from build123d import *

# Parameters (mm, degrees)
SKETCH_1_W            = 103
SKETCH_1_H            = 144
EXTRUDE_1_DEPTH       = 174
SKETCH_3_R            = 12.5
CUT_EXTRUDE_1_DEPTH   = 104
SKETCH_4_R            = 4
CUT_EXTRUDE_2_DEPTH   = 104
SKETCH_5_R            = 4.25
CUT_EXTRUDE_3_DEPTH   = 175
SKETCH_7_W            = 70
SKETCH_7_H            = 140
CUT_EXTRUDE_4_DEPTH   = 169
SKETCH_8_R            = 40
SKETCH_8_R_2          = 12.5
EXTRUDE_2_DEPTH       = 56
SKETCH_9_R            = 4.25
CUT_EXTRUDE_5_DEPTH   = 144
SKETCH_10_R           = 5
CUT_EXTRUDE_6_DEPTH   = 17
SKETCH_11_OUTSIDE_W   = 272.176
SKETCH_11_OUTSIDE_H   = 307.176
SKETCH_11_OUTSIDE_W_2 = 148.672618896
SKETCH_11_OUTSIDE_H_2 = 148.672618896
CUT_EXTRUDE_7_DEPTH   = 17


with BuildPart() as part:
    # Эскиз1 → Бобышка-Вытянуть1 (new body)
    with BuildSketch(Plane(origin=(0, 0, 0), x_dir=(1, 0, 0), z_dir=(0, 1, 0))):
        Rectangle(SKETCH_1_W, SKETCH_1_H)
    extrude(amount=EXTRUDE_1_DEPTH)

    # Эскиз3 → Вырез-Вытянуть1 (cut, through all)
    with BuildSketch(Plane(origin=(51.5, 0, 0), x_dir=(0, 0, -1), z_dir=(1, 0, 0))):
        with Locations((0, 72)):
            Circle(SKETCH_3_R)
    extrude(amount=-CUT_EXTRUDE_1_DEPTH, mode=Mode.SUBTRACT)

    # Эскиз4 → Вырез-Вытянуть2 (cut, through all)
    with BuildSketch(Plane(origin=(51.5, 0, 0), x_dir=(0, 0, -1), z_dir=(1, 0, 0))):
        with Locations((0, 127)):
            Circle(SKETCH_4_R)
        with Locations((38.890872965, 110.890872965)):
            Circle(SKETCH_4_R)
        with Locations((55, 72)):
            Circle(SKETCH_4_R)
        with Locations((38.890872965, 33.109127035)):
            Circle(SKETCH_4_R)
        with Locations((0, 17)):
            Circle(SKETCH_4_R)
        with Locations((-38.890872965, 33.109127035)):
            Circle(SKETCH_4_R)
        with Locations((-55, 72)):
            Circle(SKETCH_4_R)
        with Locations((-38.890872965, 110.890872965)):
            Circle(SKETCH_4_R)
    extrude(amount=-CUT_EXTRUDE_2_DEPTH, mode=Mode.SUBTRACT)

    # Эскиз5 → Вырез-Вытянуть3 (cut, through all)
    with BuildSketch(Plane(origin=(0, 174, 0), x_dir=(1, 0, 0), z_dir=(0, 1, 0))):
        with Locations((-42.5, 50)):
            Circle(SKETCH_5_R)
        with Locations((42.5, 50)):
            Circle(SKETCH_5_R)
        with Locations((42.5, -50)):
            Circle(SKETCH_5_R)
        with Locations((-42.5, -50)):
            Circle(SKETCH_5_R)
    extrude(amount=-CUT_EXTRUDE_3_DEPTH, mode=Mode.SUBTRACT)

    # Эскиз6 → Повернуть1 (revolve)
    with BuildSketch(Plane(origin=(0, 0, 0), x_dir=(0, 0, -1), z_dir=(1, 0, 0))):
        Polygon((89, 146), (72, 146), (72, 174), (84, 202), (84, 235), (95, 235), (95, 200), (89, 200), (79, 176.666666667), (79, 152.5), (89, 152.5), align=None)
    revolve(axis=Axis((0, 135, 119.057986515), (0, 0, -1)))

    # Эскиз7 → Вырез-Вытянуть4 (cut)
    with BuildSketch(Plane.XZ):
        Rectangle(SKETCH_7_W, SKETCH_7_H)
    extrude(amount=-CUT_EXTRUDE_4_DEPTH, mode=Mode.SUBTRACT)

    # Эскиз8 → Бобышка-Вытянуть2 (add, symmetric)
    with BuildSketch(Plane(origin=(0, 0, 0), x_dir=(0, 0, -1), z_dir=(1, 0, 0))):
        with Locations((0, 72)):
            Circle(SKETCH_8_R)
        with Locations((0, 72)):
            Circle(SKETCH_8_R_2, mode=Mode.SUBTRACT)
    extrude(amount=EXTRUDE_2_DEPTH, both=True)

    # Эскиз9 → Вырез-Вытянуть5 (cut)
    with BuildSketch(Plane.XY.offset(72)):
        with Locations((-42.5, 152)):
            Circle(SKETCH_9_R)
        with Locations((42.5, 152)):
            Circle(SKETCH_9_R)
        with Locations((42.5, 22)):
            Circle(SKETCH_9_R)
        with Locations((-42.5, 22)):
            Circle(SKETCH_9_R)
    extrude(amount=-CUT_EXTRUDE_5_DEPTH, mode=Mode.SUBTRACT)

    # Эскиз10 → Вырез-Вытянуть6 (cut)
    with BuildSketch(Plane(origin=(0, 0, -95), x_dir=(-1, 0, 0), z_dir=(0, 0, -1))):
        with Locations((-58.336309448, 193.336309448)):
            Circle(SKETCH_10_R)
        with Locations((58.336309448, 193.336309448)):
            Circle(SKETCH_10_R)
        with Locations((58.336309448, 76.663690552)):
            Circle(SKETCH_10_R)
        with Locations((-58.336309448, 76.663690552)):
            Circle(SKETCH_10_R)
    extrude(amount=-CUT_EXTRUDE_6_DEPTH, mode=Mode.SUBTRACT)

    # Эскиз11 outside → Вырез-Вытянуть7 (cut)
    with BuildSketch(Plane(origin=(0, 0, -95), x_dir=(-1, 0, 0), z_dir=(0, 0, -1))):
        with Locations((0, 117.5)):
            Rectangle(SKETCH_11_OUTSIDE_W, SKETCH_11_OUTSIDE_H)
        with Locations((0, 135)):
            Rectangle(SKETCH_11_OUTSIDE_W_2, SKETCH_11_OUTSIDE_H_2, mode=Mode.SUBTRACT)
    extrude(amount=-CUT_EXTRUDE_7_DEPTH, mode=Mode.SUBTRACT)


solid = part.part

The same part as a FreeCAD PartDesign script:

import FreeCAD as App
import Part
import Sketcher

doc = App.newDocument("Part")
body = doc.addObject("PartDesign::Body", "Body")

# Sketch on XZ plane
sketch1 = doc.addObject("Sketcher::SketchObject", "Sketch")
body.addObject(sketch1)
sketch1.AttachmentSupport = (doc.XZ_Plane, [""])
sketch1.MapMode = "FlatFace"
sketch1.addGeometry(Part.LineSegment(App.Vector(-51.5, -72, 0), App.Vector(-51.5, 72, 0)), False)
sketch1.addGeometry(Part.LineSegment(App.Vector(-51.5, 72, 0), App.Vector(51.5, 72, 0)), False)
sketch1.addGeometry(Part.LineSegment(App.Vector(51.5, 72, 0), App.Vector(51.5, -72, 0)), False)
sketch1.addGeometry(Part.LineSegment(App.Vector(51.5, -72, 0), App.Vector(-51.5, -72, 0)), False)
sketch1.addConstraint(Sketcher.Constraint("Coincident", 0, 2, 1, 1))
sketch1.addConstraint(Sketcher.Constraint("Coincident", 1, 2, 2, 1))
sketch1.addConstraint(Sketcher.Constraint("Coincident", 2, 2, 3, 1))
sketch1.addConstraint(Sketcher.Constraint("Coincident", 3, 2, 0, 1))
sketch1.addConstraint(Sketcher.Constraint("Vertical", 0))
sketch1.addConstraint(Sketcher.Constraint("Horizontal", 1))
sketch1.addConstraint(Sketcher.Constraint("Vertical", 2))
sketch1.addConstraint(Sketcher.Constraint("Horizontal", 3))
sketch1.addConstraint(Sketcher.Constraint("Symmetric", 0, 2, 2, 2, -1, 1))
sketch1.addConstraint(Sketcher.Constraint("DistanceX", 1, 1, 1, 2, 103.0))
sketch1.addConstraint(Sketcher.Constraint("DistanceY", 0, 1, 0, 2, 144.0))
pad1 = doc.addObject("PartDesign::Pad", "Pad")
body.addObject(pad1)
pad1.Profile = sketch1
pad1.Length = 174
pad1.Reversed = True

# Sketch on YZ plane
sketch2 = doc.addObject("Sketcher::SketchObject", "Sketch001")
body.addObject(sketch2)
sketch2.AttachmentSupport = (doc.YZ_Plane, [""])
sketch2.MapMode = "FlatFace"
sketch2.AttachmentOffset = App.Placement(App.Vector(0, 0, 51.5), App.Rotation())
sketch2.addGeometry(Part.Circle(App.Vector(72, 0, 0), App.Vector(0, 0, 1), 12.5), False)
sketch2.addConstraint(Sketcher.Constraint("PointOnObject", 0, 3, -1))
sketch2.addConstraint(Sketcher.Constraint("Diameter", 0, 25.0))
sketch2.addConstraint(Sketcher.Constraint("DistanceX", -1, 1, 0, 3, 72.0))
pocket1 = doc.addObject("PartDesign::Pocket", "Pocket")
body.addObject(pocket1)
pocket1.Profile = sketch2
pocket1.Type = "ThroughAll"

# Sketch on YZ plane
sketch3 = doc.addObject("Sketcher::SketchObject", "Sketch002")
body.addObject(sketch3)
sketch3.AttachmentSupport = (doc.YZ_Plane, [""])
sketch3.MapMode = "FlatFace"
sketch3.AttachmentOffset = App.Placement(App.Vector(0, 0, 51.5), App.Rotation())
sketch3.addGeometry(Part.Circle(App.Vector(127, 0, 0), App.Vector(0, 0, 1), 4), False)
sketch3.addGeometry(Part.Circle(App.Vector(110.890873, -38.890873, 0), App.Vector(0, 0, 1), 4), False)
sketch3.addGeometry(Part.Circle(App.Vector(72, -55, 0), App.Vector(0, 0, 1), 4), False)
sketch3.addGeometry(Part.Circle(App.Vector(33.109127, -38.890873, 0), App.Vector(0, 0, 1), 4), False)
sketch3.addGeometry(Part.Circle(App.Vector(17, 0, 0), App.Vector(0, 0, 1), 4), False)
sketch3.addGeometry(Part.Circle(App.Vector(33.109127, 38.890873, 0), App.Vector(0, 0, 1), 4), False)
sketch3.addGeometry(Part.Circle(App.Vector(72, 55, 0), App.Vector(0, 0, 1), 4), False)
sketch3.addGeometry(Part.Circle(App.Vector(110.890873, 38.890873, 0), App.Vector(0, 0, 1), 4), False)
sketch3.addConstraint(Sketcher.Constraint("Equal", 0, 1))
sketch3.addConstraint(Sketcher.Constraint("Equal", 1, 2))
sketch3.addConstraint(Sketcher.Constraint("Equal", 2, 3))
sketch3.addConstraint(Sketcher.Constraint("Equal", 3, 4))
sketch3.addConstraint(Sketcher.Constraint("Equal", 4, 5))
sketch3.addConstraint(Sketcher.Constraint("Equal", 5, 6))
sketch3.addConstraint(Sketcher.Constraint("Equal", 6, 7))
sketch3.addConstraint(Sketcher.Constraint("Symmetric", 3, 3, 5, 3, -1))
sketch3.addConstraint(Sketcher.Constraint("Symmetric", 2, 3, 6, 3, -1))
sketch3.addConstraint(Sketcher.Constraint("Symmetric", 1, 3, 7, 3, -1))
sketch3.addConstraint(Sketcher.Constraint("PointOnObject", 0, 3, -1))
sketch3.addConstraint(Sketcher.Constraint("PointOnObject", 4, 3, -1))
sketch3.addConstraint(Sketcher.Constraint("Horizontal", 1, 3, 3, 3))
sketch3.addConstraint(Sketcher.Constraint("Diameter", 0, 8.0))
sketch3.addConstraint(Sketcher.Constraint("DistanceX", -1, 1, 0, 3, 127.0))
sketch3.addConstraint(Sketcher.Constraint("DistanceX", -1, 1, 2, 3, 72.0))
sketch3.addConstraint(Sketcher.Constraint("DistanceY", 2, 3, -1, 1, 55.0))
sketch3.addConstraint(Sketcher.Constraint("DistanceX", -1, 1, 4, 3, 17.0))
sketch3.addConstraint(Sketcher.Constraint("DistanceX", -1, 1, 1, 3, 110.890873))
sketch3.addConstraint(Sketcher.Constraint("DistanceY", 1, 3, -1, 1, 38.890873))
sketch3.addConstraint(Sketcher.Constraint("DistanceX", -1, 1, 3, 3, 33.109127))
pocket2 = doc.addObject("PartDesign::Pocket", "Pocket001")
body.addObject(pocket2)
pocket2.Profile = sketch3
pocket2.Type = "ThroughAll"

# Sketch on XZ plane
sketch4 = doc.addObject("Sketcher::SketchObject", "Sketch003")
body.addObject(sketch4)
sketch4.AttachmentSupport = (doc.XZ_Plane, [""])
sketch4.MapMode = "FlatFace"
sketch4.AttachmentOffset = App.Placement(App.Vector(0, 0, -174), App.Rotation())
sketch4.addGeometry(Part.Circle(App.Vector(-42.5, -50, 0), App.Vector(0, 0, 1), 4.25), False)
sketch4.addGeometry(Part.Circle(App.Vector(42.5, -50, 0), App.Vector(0, 0, 1), 4.25), False)
sketch4.addGeometry(Part.Circle(App.Vector(42.5, 50, 0), App.Vector(0, 0, 1), 4.25), False)
sketch4.addGeometry(Part.Circle(App.Vector(-42.5, 50, 0), App.Vector(0, 0, 1), 4.25), False)
sketch4.addConstraint(Sketcher.Constraint("Equal", 0, 1))
sketch4.addConstraint(Sketcher.Constraint("Equal", 1, 2))
sketch4.addConstraint(Sketcher.Constraint("Equal", 2, 3))
sketch4.addConstraint(Sketcher.Constraint("Symmetric", 0, 3, 2, 3, -1, 1))
sketch4.addConstraint(Sketcher.Constraint("Symmetric", 1, 3, 3, 3, -1, 1))
sketch4.addConstraint(Sketcher.Constraint("Symmetric", 0, 3, 1, 3, -2))
sketch4.addConstraint(Sketcher.Constraint("Diameter", 0, 8.5))
sketch4.addConstraint(Sketcher.Constraint("DistanceY", 0, 3, -1, 1, 50.0))
sketch4.addConstraint(Sketcher.Constraint("DistanceX", 0, 3, 1, 3, 85.0))
pocket3 = doc.addObject("PartDesign::Pocket", "Pocket002")
body.addObject(pocket3)
pocket3.Profile = sketch4
pocket3.Type = "ThroughAll"
pocket3.Reversed = True

# Sketch on YZ plane
sketch5 = doc.addObject("Sketcher::SketchObject", "Sketch004")
body.addObject(sketch5)
sketch5.AttachmentSupport = (doc.YZ_Plane, [""])
sketch5.MapMode = "FlatFace"
sketch5.addGeometry(Part.LineSegment(App.Vector(146, -72, 0), App.Vector(146, -89, 0)), False)
sketch5.addGeometry(Part.LineSegment(App.Vector(146, -89, 0), App.Vector(152.5, -89, 0)), False)
sketch5.addGeometry(Part.LineSegment(App.Vector(152.5, -89, 0), App.Vector(152.5, -79, 0)), False)
sketch5.addGeometry(Part.LineSegment(App.Vector(152.5, -79, 0), App.Vector(176.666667, -79, 0)), False)
sketch5.addGeometry(Part.LineSegment(App.Vector(176.666667, -79, 0), App.Vector(200, -89, 0)), False)
sketch5.addGeometry(Part.LineSegment(App.Vector(200, -89, 0), App.Vector(200, -95, 0)), False)
sketch5.addGeometry(Part.LineSegment(App.Vector(200, -95, 0), App.Vector(235, -95, 0)), False)
sketch5.addGeometry(Part.LineSegment(App.Vector(235, -95, 0), App.Vector(235, -84, 0)), False)
sketch5.addGeometry(Part.LineSegment(App.Vector(235, -84, 0), App.Vector(202, -84, 0)), False)
sketch5.addGeometry(Part.LineSegment(App.Vector(202, -84, 0), App.Vector(174, -72, 0)), False)
sketch5.addGeometry(Part.LineSegment(App.Vector(174, -72, 0), App.Vector(146, -72, 0)), False)
sketch5.addGeometry(Part.LineSegment(App.Vector(135, -72, 0), App.Vector(135, -95, 0)), True)  # axis
sketch5.addConstraint(Sketcher.Constraint("Coincident", 0, 2, 1, 1))
sketch5.addConstraint(Sketcher.Constraint("Coincident", 1, 2, 2, 1))
sketch5.addConstraint(Sketcher.Constraint("Coincident", 2, 2, 3, 1))
sketch5.addConstraint(Sketcher.Constraint("Coincident", 3, 2, 4, 1))
sketch5.addConstraint(Sketcher.Constraint("Coincident", 4, 2, 5, 1))
sketch5.addConstraint(Sketcher.Constraint("Coincident", 5, 2, 6, 1))
sketch5.addConstraint(Sketcher.Constraint("Coincident", 6, 2, 7, 1))
sketch5.addConstraint(Sketcher.Constraint("Coincident", 7, 2, 8, 1))
sketch5.addConstraint(Sketcher.Constraint("Coincident", 8, 2, 9, 1))
sketch5.addConstraint(Sketcher.Constraint("Coincident", 9, 2, 10, 1))
sketch5.addConstraint(Sketcher.Constraint("Coincident", 10, 2, 0, 1))
sketch5.addConstraint(Sketcher.Constraint("Vertical", 0))
sketch5.addConstraint(Sketcher.Constraint("Horizontal", 1))
sketch5.addConstraint(Sketcher.Constraint("Vertical", 2))
sketch5.addConstraint(Sketcher.Constraint("Horizontal", 3))
sketch5.addConstraint(Sketcher.Constraint("Vertical", 5))
sketch5.addConstraint(Sketcher.Constraint("Horizontal", 6))
sketch5.addConstraint(Sketcher.Constraint("Vertical", 7))
sketch5.addConstraint(Sketcher.Constraint("Horizontal", 8))
sketch5.addConstraint(Sketcher.Constraint("Horizontal", 10))
sketch5.addConstraint(Sketcher.Constraint("Vertical", 11))
sketch5.addConstraint(Sketcher.Constraint("Parallel", 4, 9))
sketch5.addConstraint(Sketcher.Constraint("Horizontal", 1, 2, 4, 2))
sketch5.addConstraint(Sketcher.Constraint("Horizontal", 10, 2, 11, 1))
sketch5.addConstraint(Sketcher.Constraint("Horizontal", 6, 2, 11, 2))
sketch5.addConstraint(Sketcher.Constraint("DistanceX", 6, 1, 6, 2, 35.0))
sketch5.addConstraint(Sketcher.Constraint("DistanceX", 8, 2, 8, 1, 33.0))
sketch5.addConstraint(Sketcher.Constraint("DistanceX", 10, 2, 10, 1, 28.0))
sketch5.addConstraint(Sketcher.Constraint("DistanceY", 0, 2, 0, 1, 17.0))
sketch5.addConstraint(Sketcher.Constraint("DistanceY", 2, 1, 2, 2, 10.0))
sketch5.addConstraint(Sketcher.Constraint("DistanceY", 5, 2, 5, 1, 6.0))
sketch5.addConstraint(Sketcher.Constraint("DistanceY", 7, 1, 7, 2, 11.0))
sketch5.addConstraint(Sketcher.Constraint("DistanceX", 1, 1, 1, 2, 6.5))
sketch5.addConstraint(Sketcher.Constraint("DistanceX", -1, 1, 0, 2, 146.0))
sketch5.addConstraint(Sketcher.Constraint("DistanceY", 0, 2, -1, 1, 89.0))
sketch5.addConstraint(Sketcher.Constraint("DistanceX", -1, 1, 4, 2, 200.0))
sketch5.addConstraint(Sketcher.Constraint("DistanceX", -1, 1, 11, 1, 135.0))
revolution = doc.addObject("PartDesign::Revolution", "Revolution")
body.addObject(revolution)
revolution.Profile = sketch5
revolution.ReferenceAxis = (sketch5, ["Axis0"])
revolution.Angle = 360

# Sketch on XZ plane
sketch6 = doc.addObject("Sketcher::SketchObject", "Sketch005")
body.addObject(sketch6)
sketch6.AttachmentSupport = (doc.XZ_Plane, [""])
sketch6.MapMode = "FlatFace"
sketch6.addGeometry(Part.LineSegment(App.Vector(-35, 70, 0), App.Vector(-35, -70, 0)), False)
sketch6.addGeometry(Part.LineSegment(App.Vector(-35, -70, 0), App.Vector(35, -70, 0)), False)
sketch6.addGeometry(Part.LineSegment(App.Vector(35, -70, 0), App.Vector(35, 70, 0)), False)
sketch6.addGeometry(Part.LineSegment(App.Vector(35, 70, 0), App.Vector(-35, 70, 0)), False)
sketch6.addConstraint(Sketcher.Constraint("Coincident", 0, 2, 1, 1))
sketch6.addConstraint(Sketcher.Constraint("Coincident", 1, 2, 2, 1))
sketch6.addConstraint(Sketcher.Constraint("Coincident", 2, 2, 3, 1))
sketch6.addConstraint(Sketcher.Constraint("Coincident", 3, 2, 0, 1))
sketch6.addConstraint(Sketcher.Constraint("Vertical", 0))
sketch6.addConstraint(Sketcher.Constraint("Horizontal", 1))
sketch6.addConstraint(Sketcher.Constraint("Vertical", 2))
sketch6.addConstraint(Sketcher.Constraint("Horizontal", 3))
sketch6.addConstraint(Sketcher.Constraint("Symmetric", 0, 2, 2, 2, -1, 1))
sketch6.addConstraint(Sketcher.Constraint("DistanceX", 1, 1, 1, 2, 70.0))
sketch6.addConstraint(Sketcher.Constraint("DistanceY", 0, 2, 0, 1, 140.0))
pocket4 = doc.addObject("PartDesign::Pocket", "Pocket003")
body.addObject(pocket4)
pocket4.Profile = sketch6
pocket4.Length = 169

# Sketch on YZ plane
sketch7 = doc.addObject("Sketcher::SketchObject", "Sketch006")
body.addObject(sketch7)
sketch7.AttachmentSupport = (doc.YZ_Plane, [""])
sketch7.MapMode = "FlatFace"
sketch7.addGeometry(Part.Circle(App.Vector(72, 0, 0), App.Vector(0, 0, 1), 40), False)
sketch7.addGeometry(Part.Circle(App.Vector(72, 0, 0), App.Vector(0, 0, 1), 12.5), False)
sketch7.addConstraint(Sketcher.Constraint("Coincident", 1, 3, 0, 3))
sketch7.addConstraint(Sketcher.Constraint("PointOnObject", 0, 3, -1))
sketch7.addConstraint(Sketcher.Constraint("Diameter", 0, 80.0))
sketch7.addConstraint(Sketcher.Constraint("Diameter", 1, 25.0))
sketch7.addConstraint(Sketcher.Constraint("DistanceX", -1, 1, 0, 3, 72.0))
pad2 = doc.addObject("PartDesign::Pad", "Pad001")
body.addObject(pad2)
pad2.Profile = sketch7
pad2.Length = 112
pad2.Midplane = True

# Sketch on XY plane
sketch8 = doc.addObject("Sketcher::SketchObject", "Sketch007")
body.addObject(sketch8)
sketch8.AttachmentSupport = (doc.XY_Plane, [""])
sketch8.MapMode = "FlatFace"
sketch8.AttachmentOffset = App.Placement(App.Vector(0, 0, 72), App.Rotation())
sketch8.addGeometry(Part.Circle(App.Vector(-42.5, 152, 0), App.Vector(0, 0, 1), 4.25), False)
sketch8.addGeometry(Part.Circle(App.Vector(42.5, 152, 0), App.Vector(0, 0, 1), 4.25), False)
sketch8.addGeometry(Part.Circle(App.Vector(42.5, 22, 0), App.Vector(0, 0, 1), 4.25), False)
sketch8.addGeometry(Part.Circle(App.Vector(-42.5, 22, 0), App.Vector(0, 0, 1), 4.25), False)
sketch8.addConstraint(Sketcher.Constraint("Equal", 0, 1))
sketch8.addConstraint(Sketcher.Constraint("Equal", 1, 2))
sketch8.addConstraint(Sketcher.Constraint("Equal", 2, 3))
sketch8.addConstraint(Sketcher.Constraint("Symmetric", 0, 3, 1, 3, -2))
sketch8.addConstraint(Sketcher.Constraint("Symmetric", 2, 3, 3, 3, -2))
sketch8.addConstraint(Sketcher.Constraint("Vertical", 1, 3, 2, 3))
sketch8.addConstraint(Sketcher.Constraint("Diameter", 0, 8.5))
sketch8.addConstraint(Sketcher.Constraint("DistanceY", -1, 1, 0, 3, 152.0))
sketch8.addConstraint(Sketcher.Constraint("DistanceY", -1, 1, 2, 3, 22.0))
sketch8.addConstraint(Sketcher.Constraint("DistanceX", 0, 3, 1, 3, 85.0))
pocket5 = doc.addObject("PartDesign::Pocket", "Pocket004")
body.addObject(pocket5)
pocket5.Profile = sketch8
pocket5.Length = 144

# Sketch on XY plane
sketch9 = doc.addObject("Sketcher::SketchObject", "Sketch008")
body.addObject(sketch9)
sketch9.AttachmentSupport = (doc.XY_Plane, [""])
sketch9.MapMode = "FlatFace"
sketch9.AttachmentOffset = App.Placement(App.Vector(0, 0, -95), App.Rotation())
sketch9.addGeometry(Part.Circle(App.Vector(58.336309, 193.336309, 0), App.Vector(0, 0, 1), 5), False)
sketch9.addGeometry(Part.Circle(App.Vector(-58.336309, 193.336309, 0), App.Vector(0, 0, 1), 5), False)
sketch9.addGeometry(Part.Circle(App.Vector(-58.336309, 76.663691, 0), App.Vector(0, 0, 1), 5), False)
sketch9.addGeometry(Part.Circle(App.Vector(58.336309, 76.663691, 0), App.Vector(0, 0, 1), 5), False)
sketch9.addConstraint(Sketcher.Constraint("Equal", 0, 1))
sketch9.addConstraint(Sketcher.Constraint("Equal", 1, 2))
sketch9.addConstraint(Sketcher.Constraint("Equal", 2, 3))
sketch9.addConstraint(Sketcher.Constraint("Symmetric", 0, 3, 1, 3, -2))
sketch9.addConstraint(Sketcher.Constraint("Symmetric", 2, 3, 3, 3, -2))
sketch9.addConstraint(Sketcher.Constraint("Vertical", 1, 3, 2, 3))
sketch9.addConstraint(Sketcher.Constraint("Diameter", 0, 10.0))
sketch9.addConstraint(Sketcher.Constraint("DistanceX", -1, 1, 0, 3, 58.336309))
sketch9.addConstraint(Sketcher.Constraint("DistanceY", -1, 1, 0, 3, 193.336309))
sketch9.addConstraint(Sketcher.Constraint("DistanceY", -1, 1, 2, 3, 76.663691))
pocket6 = doc.addObject("PartDesign::Pocket", "Pocket005")
body.addObject(pocket6)
pocket6.Profile = sketch9
pocket6.Length = 17
pocket6.Reversed = True

# Sketch on XY plane
sketch10 = doc.addObject("Sketcher::SketchObject", "Sketch009")
body.addObject(sketch10)
sketch10.AttachmentSupport = (doc.XY_Plane, [""])
sketch10.MapMode = "FlatFace"
sketch10.AttachmentOffset = App.Placement(App.Vector(0, 0, -95), App.Rotation())
sketch10.addGeometry(Part.LineSegment(App.Vector(136.088, 271.088, 0), App.Vector(136.088, -36.088, 0)), False)
sketch10.addGeometry(Part.LineSegment(App.Vector(136.088, -36.088, 0), App.Vector(-136.088, -36.088, 0)), False)
sketch10.addGeometry(Part.LineSegment(App.Vector(-136.088, -36.088, 0), App.Vector(-136.088, 271.088, 0)), False)
sketch10.addGeometry(Part.LineSegment(App.Vector(-136.088, 271.088, 0), App.Vector(136.088, 271.088, 0)), False)
sketch10.addGeometry(Part.LineSegment(App.Vector(-74.336309, 60.663691, 0), App.Vector(74.336309, 60.663691, 0)), False)
sketch10.addGeometry(Part.LineSegment(App.Vector(74.336309, 60.663691, 0), App.Vector(74.336309, 209.336309, 0)), False)
sketch10.addGeometry(Part.LineSegment(App.Vector(74.336309, 209.336309, 0), App.Vector(-74.336309, 209.336309, 0)), False)
sketch10.addGeometry(Part.LineSegment(App.Vector(-74.336309, 209.336309, 0), App.Vector(-74.336309, 60.663691, 0)), False)
sketch10.addConstraint(Sketcher.Constraint("Coincident", 0, 2, 1, 1))
sketch10.addConstraint(Sketcher.Constraint("Coincident", 1, 2, 2, 1))
sketch10.addConstraint(Sketcher.Constraint("Coincident", 2, 2, 3, 1))
sketch10.addConstraint(Sketcher.Constraint("Coincident", 3, 2, 0, 1))
sketch10.addConstraint(Sketcher.Constraint("Coincident", 4, 2, 5, 1))
sketch10.addConstraint(Sketcher.Constraint("Coincident", 5, 2, 6, 1))
sketch10.addConstraint(Sketcher.Constraint("Coincident", 6, 2, 7, 1))
sketch10.addConstraint(Sketcher.Constraint("Coincident", 7, 2, 4, 1))
sketch10.addConstraint(Sketcher.Constraint("Vertical", 0))
sketch10.addConstraint(Sketcher.Constraint("Horizontal", 1))
sketch10.addConstraint(Sketcher.Constraint("Vertical", 2))
sketch10.addConstraint(Sketcher.Constraint("Horizontal", 3))
sketch10.addConstraint(Sketcher.Constraint("Horizontal", 4))
sketch10.addConstraint(Sketcher.Constraint("Vertical", 5))
sketch10.addConstraint(Sketcher.Constraint("Horizontal", 6))
sketch10.addConstraint(Sketcher.Constraint("Vertical", 7))
sketch10.addConstraint(Sketcher.Constraint("Equal", 6, 5))
sketch10.addConstraint(Sketcher.Constraint("DistanceX", 1, 2, 1, 1, 272.176))
sketch10.addConstraint(Sketcher.Constraint("DistanceY", 0, 2, 0, 1, 307.176))
sketch10.addConstraint(Sketcher.Constraint("DistanceX", -1, 1, 0, 2, 136.088))
sketch10.addConstraint(Sketcher.Constraint("DistanceY", 0, 2, -1, 1, 36.088))
sketch10.addConstraint(Sketcher.Constraint("DistanceX", 4, 1, 4, 2, 148.672619))
sketch10.addConstraint(Sketcher.Constraint("DistanceX", -1, 1, 4, 2, 74.336309))
sketch10.addConstraint(Sketcher.Constraint("DistanceY", -1, 1, 4, 2, 60.663691))
pocket7 = doc.addObject("PartDesign::Pocket", "Pocket006")
body.addObject(pocket7)
pocket7.Profile = sketch10
pocket7.Length = 17
pocket7.Reversed = True

doc.recompute()
